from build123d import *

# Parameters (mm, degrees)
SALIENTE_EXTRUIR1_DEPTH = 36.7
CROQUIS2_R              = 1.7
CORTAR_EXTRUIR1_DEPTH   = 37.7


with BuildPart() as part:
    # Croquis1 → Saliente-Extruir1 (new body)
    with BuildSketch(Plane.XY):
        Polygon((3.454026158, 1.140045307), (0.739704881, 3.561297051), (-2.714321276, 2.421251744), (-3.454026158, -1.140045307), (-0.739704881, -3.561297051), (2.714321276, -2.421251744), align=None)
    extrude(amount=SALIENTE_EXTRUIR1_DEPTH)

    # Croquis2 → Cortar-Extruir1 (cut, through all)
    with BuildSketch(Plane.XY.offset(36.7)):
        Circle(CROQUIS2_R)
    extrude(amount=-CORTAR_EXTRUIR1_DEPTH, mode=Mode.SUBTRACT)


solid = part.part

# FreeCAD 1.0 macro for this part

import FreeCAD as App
import Part
import Sketcher

doc = App.newDocument("Part")
body = doc.addObject("PartDesign::Body", "Body")

sketch1 = doc.addObject("Sketcher::SketchObject", "Sketch")
body.addObject(sketch1)
sketch1.AttachmentSupport = (doc.XY_Plane, [""])
sketch1.MapMode = "FlatFace"
sketch1.addGeometry([
    Part.LineSegment(App.Vector(3.5, 1.1, 0), App.Vector(0.7, 3.6, 0)),
    Part.LineSegment(App.Vector(0.7, 3.6, 0), App.Vector(-2.7, 2.4, 0)),
    Part.LineSegment(App.Vector(-2.7, 2.4, 0), App.Vector(-3.5, -1.1, 0)),
    Part.LineSegment(App.Vector(-3.5, -1.1, 0), App.Vector(-0.7, -3.6, 0)),
    Part.LineSegment(App.Vector(-0.7, -3.6, 0), App.Vector(2.7, -2.4, 0)),
    Part.LineSegment(App.Vector(2.7, -2.4, 0), App.Vector(3.5, 1.1, 0)),
], False)
sketch1.addConstraint([
    Sketcher.Constraint("Coincident", 0, 2, 1, 1),
    Sketcher.Constraint("Coincident", 1, 2, 2, 1),
    Sketcher.Constraint("Coincident", 2, 2, 3, 1),
    Sketcher.Constraint("Coincident", 3, 2, 4, 1),
    Sketcher.Constraint("Coincident", 4, 2, 5, 1),
    Sketcher.Constraint("Coincident", 5, 2, 0, 1),
    Sketcher.Constraint("Symmetric", 0, 2, 3, 2, -1, 1),
    Sketcher.Constraint("Symmetric", 1, 2, 4, 2, -1, 1),
    Sketcher.Constraint("Symmetric", 2, 2, 5, 2, -1, 1),
    Sketcher.Constraint("Equal", 0, 1),
    Sketcher.Constraint("Equal", 1, 2),
    Sketcher.Constraint("DistanceX", 1, 2, -1, 1, 2.714321),
    Sketcher.Constraint("DistanceY", -1, 1, 1, 2, 2.421252),
    Sketcher.Constraint("DistanceX", 2, 2, 0, 2, 4.193731),
    Sketcher.Constraint("DistanceX", 2, 2, 3, 2, 2.714321),
])
pad1 = doc.addObject("PartDesign::Pad", "Pad")
body.addObject(pad1)
pad1.Profile = sketch1
pad1.Length = 36.7

sketch2 = doc.addObject("Sketcher::SketchObject", "Sketch001")
body.addObject(sketch2)
sketch2.AttachmentSupport = (doc.XY_Plane, [""])
sketch2.MapMode = "FlatFace"
sketch2.AttachmentOffset = App.Placement(App.Vector(0, 0, 36.7), App.Rotation())
sketch2.addGeometry(Part.Circle(App.Vector(0, 0, 0), App.Vector(0, 0, 1), 1.7), False)
sketch2.addConstraint([
    Sketcher.Constraint("Coincident", 0, 3, -1, 1),
    Sketcher.Constraint("Diameter", 0, 3.4),
])
pocket1 = doc.addObject("PartDesign::Pocket", "Pocket")
body.addObject(pocket1)
pocket1.Profile = sketch2
pocket1.Type = "ThroughAll"

doc.recompute()
